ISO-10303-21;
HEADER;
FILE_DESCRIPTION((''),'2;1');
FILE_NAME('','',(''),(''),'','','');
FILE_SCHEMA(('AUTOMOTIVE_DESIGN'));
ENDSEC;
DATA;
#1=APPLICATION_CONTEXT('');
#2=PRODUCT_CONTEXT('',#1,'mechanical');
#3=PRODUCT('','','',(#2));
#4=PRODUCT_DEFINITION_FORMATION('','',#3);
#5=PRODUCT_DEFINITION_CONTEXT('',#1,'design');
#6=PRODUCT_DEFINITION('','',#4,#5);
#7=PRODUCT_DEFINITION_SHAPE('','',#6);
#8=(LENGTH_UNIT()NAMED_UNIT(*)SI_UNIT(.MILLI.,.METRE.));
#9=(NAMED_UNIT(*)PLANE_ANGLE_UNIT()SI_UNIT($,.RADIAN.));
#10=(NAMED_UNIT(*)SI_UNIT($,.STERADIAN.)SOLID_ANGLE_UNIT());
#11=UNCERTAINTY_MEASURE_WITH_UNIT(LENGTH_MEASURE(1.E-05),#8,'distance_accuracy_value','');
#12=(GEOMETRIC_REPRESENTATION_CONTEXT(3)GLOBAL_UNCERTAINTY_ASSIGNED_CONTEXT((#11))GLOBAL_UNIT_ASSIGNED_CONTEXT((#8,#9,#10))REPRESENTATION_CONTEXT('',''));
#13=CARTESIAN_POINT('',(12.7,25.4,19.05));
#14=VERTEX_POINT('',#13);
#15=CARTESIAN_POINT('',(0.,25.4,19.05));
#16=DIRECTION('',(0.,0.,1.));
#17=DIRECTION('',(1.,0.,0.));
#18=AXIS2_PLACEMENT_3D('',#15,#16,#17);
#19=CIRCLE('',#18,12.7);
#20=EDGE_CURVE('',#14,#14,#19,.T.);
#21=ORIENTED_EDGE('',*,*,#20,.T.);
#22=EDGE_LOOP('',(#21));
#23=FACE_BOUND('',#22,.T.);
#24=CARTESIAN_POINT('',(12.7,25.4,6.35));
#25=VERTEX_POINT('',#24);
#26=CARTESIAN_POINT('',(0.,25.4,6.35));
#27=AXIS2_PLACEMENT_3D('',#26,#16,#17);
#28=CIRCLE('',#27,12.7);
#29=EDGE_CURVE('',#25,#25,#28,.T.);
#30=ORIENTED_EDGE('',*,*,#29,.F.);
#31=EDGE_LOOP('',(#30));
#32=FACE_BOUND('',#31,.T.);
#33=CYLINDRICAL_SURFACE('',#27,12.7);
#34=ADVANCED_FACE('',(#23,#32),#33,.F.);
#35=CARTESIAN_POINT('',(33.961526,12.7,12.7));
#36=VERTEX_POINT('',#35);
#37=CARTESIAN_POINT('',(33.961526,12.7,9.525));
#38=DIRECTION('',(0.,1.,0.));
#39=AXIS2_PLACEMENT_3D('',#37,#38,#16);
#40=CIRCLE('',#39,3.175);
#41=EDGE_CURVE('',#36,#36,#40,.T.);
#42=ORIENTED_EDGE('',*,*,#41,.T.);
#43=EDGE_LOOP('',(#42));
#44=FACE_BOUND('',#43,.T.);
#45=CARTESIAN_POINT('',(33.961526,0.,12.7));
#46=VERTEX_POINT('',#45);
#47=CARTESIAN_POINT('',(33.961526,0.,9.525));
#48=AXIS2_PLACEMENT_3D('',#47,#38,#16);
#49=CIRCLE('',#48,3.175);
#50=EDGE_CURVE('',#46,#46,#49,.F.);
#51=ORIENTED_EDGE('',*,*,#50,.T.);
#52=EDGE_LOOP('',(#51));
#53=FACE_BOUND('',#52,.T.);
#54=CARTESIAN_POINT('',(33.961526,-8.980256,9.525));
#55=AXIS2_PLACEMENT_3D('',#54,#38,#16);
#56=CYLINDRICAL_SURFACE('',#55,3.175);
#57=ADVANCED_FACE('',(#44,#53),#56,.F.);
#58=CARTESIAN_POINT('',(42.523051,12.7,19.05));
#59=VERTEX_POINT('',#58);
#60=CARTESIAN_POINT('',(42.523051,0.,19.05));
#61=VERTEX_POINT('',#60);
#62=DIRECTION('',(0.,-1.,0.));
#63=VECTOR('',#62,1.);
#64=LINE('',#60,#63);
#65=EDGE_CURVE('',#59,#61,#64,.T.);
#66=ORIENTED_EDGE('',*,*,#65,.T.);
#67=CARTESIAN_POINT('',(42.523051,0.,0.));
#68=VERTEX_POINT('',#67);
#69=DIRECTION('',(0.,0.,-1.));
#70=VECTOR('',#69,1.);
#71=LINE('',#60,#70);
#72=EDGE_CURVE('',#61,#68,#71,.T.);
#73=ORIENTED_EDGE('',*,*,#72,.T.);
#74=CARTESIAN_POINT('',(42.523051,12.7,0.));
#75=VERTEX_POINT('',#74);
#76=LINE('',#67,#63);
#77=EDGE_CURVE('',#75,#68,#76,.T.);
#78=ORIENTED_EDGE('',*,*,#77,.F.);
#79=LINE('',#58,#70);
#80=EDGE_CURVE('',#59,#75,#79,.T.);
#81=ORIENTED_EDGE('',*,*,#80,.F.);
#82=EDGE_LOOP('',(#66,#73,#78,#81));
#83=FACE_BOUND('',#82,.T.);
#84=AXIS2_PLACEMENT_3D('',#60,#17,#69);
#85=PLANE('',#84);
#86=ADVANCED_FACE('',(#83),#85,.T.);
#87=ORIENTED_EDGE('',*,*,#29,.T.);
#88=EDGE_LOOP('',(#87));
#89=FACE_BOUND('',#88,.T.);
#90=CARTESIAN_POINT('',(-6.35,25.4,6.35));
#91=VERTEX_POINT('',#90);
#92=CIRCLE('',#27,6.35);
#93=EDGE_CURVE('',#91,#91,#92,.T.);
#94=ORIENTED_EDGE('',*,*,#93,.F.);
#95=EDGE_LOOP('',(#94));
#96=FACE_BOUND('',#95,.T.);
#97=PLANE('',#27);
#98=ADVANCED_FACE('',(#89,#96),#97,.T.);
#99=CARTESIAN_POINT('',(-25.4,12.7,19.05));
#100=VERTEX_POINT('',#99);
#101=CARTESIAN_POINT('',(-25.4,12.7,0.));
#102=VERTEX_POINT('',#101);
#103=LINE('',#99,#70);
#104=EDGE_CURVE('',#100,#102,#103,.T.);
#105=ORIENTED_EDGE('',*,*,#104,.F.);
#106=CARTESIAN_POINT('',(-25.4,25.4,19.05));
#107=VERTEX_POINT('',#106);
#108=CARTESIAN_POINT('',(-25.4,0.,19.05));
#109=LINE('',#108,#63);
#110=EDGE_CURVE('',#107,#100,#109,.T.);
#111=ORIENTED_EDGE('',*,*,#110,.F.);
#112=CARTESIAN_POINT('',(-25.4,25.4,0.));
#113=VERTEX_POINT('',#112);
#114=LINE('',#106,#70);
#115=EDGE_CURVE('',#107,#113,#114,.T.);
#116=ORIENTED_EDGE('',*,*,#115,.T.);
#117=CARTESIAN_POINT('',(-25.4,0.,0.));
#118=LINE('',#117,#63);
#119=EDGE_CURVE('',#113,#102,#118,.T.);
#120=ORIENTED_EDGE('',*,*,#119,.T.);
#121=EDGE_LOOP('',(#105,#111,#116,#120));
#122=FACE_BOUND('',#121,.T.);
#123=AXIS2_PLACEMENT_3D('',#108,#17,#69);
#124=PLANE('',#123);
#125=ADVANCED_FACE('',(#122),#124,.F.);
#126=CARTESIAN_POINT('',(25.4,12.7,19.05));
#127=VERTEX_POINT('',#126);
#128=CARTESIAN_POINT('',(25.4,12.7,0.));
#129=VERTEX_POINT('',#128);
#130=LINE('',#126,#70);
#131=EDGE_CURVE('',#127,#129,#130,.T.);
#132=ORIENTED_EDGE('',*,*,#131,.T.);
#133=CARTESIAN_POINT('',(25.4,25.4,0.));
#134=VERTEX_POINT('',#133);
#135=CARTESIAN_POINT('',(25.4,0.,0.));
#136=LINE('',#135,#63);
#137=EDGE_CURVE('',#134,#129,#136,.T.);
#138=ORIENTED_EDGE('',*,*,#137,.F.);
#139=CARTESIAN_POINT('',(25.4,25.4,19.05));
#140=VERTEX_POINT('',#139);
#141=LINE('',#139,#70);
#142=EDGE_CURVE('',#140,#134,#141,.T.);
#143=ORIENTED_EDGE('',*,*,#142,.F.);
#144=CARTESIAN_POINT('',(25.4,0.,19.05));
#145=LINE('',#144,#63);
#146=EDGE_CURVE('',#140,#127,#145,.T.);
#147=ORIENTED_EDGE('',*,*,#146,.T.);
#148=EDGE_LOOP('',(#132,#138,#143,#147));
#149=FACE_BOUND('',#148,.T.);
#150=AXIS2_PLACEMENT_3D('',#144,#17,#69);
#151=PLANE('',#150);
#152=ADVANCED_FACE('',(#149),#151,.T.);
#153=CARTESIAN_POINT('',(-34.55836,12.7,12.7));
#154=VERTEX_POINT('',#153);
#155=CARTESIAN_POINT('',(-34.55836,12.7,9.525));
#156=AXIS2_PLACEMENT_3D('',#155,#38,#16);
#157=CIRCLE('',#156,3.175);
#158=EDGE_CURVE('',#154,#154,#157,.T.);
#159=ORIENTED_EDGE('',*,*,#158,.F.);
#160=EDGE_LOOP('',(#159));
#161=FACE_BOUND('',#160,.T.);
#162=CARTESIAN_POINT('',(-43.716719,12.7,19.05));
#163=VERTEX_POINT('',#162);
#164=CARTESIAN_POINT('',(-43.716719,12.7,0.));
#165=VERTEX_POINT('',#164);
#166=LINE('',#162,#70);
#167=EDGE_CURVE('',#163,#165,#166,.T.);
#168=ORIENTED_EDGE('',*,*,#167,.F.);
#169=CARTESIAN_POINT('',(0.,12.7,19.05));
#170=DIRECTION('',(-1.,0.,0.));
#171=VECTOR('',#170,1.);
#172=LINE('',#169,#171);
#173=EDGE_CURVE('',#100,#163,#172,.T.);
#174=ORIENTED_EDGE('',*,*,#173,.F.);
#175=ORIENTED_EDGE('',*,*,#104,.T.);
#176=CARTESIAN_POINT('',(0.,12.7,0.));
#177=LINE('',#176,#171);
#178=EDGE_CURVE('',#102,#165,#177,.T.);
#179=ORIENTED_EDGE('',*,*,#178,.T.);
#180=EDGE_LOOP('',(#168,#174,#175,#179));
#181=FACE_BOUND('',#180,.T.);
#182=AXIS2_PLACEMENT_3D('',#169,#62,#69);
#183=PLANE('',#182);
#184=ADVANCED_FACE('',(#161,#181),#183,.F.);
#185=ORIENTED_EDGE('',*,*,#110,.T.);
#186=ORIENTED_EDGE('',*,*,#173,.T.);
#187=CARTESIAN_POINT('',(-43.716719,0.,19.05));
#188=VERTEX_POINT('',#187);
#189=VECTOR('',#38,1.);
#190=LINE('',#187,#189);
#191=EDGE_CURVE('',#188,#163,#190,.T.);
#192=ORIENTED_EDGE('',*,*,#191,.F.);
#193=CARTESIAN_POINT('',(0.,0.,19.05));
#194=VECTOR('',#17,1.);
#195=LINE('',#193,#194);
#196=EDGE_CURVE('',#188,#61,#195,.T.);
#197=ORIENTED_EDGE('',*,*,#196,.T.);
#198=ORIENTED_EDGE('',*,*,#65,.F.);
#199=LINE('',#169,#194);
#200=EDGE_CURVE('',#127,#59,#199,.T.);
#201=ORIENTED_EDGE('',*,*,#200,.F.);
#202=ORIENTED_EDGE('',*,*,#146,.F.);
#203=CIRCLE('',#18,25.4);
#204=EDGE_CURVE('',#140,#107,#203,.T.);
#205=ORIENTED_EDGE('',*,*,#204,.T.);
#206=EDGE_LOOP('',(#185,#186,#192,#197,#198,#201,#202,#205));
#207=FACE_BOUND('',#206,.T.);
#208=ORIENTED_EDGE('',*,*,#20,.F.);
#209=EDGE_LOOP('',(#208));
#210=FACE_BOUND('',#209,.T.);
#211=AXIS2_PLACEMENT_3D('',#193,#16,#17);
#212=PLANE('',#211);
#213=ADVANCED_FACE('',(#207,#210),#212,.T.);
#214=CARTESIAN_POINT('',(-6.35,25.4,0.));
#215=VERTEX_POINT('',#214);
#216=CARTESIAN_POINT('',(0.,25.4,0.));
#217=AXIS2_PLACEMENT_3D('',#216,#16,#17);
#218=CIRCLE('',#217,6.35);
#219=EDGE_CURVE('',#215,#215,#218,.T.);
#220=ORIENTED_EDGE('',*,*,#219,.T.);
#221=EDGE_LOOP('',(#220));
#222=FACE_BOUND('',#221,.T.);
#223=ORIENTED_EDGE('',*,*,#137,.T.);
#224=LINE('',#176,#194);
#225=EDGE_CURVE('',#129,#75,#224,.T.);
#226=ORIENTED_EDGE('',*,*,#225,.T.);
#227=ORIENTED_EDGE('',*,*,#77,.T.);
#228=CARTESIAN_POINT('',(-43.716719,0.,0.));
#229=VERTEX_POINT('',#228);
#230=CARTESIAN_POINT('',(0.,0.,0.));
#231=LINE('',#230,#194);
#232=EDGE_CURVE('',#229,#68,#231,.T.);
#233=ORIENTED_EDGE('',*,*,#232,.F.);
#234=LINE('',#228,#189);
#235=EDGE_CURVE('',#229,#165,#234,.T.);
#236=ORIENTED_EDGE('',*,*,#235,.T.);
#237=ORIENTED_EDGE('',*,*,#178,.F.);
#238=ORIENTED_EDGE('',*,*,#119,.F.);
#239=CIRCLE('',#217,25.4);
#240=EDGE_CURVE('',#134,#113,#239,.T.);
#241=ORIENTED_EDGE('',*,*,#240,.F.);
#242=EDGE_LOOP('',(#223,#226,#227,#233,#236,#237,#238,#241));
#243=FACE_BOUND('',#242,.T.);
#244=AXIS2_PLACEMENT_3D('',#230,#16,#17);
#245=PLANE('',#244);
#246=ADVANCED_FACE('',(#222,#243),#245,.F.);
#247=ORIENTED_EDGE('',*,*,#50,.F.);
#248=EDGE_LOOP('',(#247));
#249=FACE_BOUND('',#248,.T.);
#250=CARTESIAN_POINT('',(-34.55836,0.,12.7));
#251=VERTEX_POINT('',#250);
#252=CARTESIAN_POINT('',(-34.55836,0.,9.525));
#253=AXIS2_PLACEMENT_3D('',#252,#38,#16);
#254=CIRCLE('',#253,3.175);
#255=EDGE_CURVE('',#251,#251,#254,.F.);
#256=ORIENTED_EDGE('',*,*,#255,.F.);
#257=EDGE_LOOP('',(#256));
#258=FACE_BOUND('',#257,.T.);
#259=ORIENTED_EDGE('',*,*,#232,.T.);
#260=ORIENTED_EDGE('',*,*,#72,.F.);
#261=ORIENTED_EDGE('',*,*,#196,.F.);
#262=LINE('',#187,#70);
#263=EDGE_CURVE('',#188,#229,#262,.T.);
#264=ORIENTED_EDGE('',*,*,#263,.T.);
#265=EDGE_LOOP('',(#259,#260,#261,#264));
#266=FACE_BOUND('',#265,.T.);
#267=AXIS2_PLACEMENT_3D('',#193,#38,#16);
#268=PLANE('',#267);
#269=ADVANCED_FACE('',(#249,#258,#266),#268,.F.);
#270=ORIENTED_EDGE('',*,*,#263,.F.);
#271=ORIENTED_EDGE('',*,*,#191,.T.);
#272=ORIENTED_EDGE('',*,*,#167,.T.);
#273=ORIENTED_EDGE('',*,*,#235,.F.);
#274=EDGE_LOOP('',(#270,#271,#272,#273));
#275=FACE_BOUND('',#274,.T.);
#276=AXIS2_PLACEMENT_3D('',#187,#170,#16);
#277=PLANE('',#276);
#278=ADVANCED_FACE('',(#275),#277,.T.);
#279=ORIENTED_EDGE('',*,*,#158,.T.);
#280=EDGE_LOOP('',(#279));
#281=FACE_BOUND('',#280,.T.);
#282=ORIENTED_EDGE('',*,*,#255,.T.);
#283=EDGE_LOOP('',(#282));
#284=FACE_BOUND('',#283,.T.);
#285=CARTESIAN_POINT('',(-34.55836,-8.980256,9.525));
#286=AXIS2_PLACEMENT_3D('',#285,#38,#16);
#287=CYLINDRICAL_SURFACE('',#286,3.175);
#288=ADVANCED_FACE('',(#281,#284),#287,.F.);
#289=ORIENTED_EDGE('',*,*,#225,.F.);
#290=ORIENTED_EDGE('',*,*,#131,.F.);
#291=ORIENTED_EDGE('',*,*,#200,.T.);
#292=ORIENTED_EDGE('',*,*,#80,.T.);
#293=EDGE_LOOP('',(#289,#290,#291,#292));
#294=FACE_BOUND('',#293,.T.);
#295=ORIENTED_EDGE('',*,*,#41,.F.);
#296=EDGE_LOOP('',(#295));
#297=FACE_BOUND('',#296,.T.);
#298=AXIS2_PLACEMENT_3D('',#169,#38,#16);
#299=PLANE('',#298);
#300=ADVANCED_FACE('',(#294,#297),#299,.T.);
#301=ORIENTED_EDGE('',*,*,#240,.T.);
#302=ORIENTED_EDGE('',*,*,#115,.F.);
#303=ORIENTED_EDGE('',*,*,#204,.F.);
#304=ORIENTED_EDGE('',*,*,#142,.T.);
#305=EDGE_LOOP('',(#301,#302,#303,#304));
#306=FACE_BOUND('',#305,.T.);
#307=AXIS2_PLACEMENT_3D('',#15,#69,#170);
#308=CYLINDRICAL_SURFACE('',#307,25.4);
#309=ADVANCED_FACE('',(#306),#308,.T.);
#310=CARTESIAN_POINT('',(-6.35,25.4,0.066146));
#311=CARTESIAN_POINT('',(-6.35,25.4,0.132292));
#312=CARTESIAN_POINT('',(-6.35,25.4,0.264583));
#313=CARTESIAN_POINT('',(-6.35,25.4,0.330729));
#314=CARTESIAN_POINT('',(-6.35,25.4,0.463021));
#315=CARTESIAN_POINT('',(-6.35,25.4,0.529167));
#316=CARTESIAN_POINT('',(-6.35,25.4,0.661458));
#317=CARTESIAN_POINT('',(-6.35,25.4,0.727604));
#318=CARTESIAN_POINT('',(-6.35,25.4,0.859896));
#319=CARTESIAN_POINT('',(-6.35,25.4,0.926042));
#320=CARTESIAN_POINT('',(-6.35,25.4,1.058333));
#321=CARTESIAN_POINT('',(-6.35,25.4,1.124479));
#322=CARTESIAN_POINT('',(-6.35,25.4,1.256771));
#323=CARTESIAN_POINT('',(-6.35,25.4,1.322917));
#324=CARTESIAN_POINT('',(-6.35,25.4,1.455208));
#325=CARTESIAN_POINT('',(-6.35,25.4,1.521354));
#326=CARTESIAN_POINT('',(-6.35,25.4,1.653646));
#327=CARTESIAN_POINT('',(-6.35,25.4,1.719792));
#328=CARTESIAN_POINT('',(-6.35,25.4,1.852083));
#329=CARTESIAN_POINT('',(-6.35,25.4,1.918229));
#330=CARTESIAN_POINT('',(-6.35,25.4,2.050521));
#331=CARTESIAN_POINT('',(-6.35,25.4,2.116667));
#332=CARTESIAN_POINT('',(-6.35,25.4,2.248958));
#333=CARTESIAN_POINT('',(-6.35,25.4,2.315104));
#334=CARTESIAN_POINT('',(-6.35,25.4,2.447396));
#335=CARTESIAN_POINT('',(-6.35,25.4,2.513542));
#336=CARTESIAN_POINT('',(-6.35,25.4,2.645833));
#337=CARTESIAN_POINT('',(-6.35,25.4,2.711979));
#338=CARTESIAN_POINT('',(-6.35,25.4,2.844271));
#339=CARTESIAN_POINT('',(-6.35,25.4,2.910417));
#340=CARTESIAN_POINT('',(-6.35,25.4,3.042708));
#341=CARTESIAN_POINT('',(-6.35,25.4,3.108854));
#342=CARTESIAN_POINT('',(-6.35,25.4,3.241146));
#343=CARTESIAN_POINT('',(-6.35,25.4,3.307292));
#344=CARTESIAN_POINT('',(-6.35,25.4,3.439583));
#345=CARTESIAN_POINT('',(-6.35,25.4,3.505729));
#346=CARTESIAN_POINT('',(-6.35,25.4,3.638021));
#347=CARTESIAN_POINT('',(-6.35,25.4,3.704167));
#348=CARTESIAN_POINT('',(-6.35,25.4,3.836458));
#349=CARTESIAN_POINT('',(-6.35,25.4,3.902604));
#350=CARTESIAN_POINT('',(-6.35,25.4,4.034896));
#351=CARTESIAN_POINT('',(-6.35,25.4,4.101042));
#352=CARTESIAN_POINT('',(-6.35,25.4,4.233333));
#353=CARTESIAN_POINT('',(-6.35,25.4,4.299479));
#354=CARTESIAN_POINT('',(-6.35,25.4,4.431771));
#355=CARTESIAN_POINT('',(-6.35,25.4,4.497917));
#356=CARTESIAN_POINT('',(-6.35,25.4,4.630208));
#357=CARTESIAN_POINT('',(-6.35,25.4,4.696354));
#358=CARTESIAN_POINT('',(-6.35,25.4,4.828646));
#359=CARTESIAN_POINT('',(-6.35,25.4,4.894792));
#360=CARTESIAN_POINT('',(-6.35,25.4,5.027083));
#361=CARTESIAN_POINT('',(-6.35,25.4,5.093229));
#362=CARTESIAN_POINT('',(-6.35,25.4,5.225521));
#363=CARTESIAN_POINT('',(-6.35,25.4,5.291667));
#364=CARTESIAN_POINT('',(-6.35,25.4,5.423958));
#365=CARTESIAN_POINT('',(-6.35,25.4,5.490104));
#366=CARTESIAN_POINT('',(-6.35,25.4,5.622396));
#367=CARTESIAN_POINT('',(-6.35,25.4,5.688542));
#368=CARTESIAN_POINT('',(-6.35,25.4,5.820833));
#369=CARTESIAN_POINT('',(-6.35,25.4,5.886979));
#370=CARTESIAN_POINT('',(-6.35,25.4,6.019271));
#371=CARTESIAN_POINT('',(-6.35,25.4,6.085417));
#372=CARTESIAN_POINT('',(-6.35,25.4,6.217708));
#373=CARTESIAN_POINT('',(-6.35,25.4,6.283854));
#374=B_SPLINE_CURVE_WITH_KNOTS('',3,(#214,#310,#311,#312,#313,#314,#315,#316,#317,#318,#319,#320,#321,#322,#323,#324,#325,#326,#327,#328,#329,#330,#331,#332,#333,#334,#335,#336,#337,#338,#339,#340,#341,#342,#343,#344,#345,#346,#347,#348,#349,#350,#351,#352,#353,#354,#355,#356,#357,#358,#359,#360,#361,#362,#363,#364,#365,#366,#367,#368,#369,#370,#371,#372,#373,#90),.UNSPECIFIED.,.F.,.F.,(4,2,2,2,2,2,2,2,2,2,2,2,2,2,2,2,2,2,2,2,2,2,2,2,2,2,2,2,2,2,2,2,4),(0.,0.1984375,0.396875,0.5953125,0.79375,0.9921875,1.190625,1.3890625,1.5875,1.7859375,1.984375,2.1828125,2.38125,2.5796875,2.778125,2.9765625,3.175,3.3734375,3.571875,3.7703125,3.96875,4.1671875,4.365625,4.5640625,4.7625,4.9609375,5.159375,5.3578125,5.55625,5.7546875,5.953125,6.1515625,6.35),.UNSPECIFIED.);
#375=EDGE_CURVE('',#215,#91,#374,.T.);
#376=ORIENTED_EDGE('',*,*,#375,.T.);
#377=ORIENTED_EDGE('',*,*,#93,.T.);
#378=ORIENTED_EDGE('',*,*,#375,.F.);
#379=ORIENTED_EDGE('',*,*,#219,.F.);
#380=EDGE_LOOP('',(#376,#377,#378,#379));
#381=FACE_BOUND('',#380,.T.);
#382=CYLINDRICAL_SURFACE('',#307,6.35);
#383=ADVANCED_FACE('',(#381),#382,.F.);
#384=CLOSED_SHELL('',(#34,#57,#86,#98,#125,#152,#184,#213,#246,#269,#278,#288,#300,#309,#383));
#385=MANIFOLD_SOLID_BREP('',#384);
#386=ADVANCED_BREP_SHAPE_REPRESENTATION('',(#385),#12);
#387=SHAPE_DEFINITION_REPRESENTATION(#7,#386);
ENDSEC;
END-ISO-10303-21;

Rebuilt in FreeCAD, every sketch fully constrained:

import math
import FreeCAD as App
import Part
import Sketcher
from FreeCAD import Vector
Q = App.Units.Quantity

doc = App.newDocument("Part")
body = doc.addObject("PartDesign::Body", "Body")

sketch1 = doc.addObject("Sketcher::SketchObject", "Sketch")
body.addObject(sketch1)
sketch1.AttachmentSupport = (doc.XY_Plane, [""])
sketch1.MapMode = "FlatFace"
sketch1.addGeometry([
    Part.LineSegment(Vector(25, 13, 0), Vector(25, 25, 0)),
    Part.ArcOfCircle(Part.Circle(Vector(0, 25, 0), Vector(0, 0, 1), 25), math.radians(0), math.radians(180)),
    Part.LineSegment(Vector(-25, 25, 0), Vector(-25, 13, 0)),
    Part.LineSegment(Vector(-25, 13, 0), Vector(-44, 13, 0)),
    Part.LineSegment(Vector(-44, 13, 0), Vector(-44, 0, 0)),
    Part.LineSegment(Vector(-44, 0, 0), Vector(43, 0, 0)),
    Part.LineSegment(Vector(43, 0, 0), Vector(43, 13, 0)),
    Part.LineSegment(Vector(43, 13, 0), Vector(25, 13, 0)),
    Part.Circle(Vector(0, 25, 0), Vector(0, 0, 1), 6),
], False)
sketch1.addConstraint([
    Sketcher.Constraint("Tangent", 0, 2, 1, 1),
    Sketcher.Constraint("Tangent", 1, 2, 2, 1),
    Sketcher.Constraint("Coincident", 2, 2, 3, 1),
    Sketcher.Constraint("Coincident", 3, 2, 4, 1),
    Sketcher.Constraint("Coincident", 4, 2, 5, 1),
    Sketcher.Constraint("Coincident", 5, 2, 6, 1),
    Sketcher.Constraint("Coincident", 6, 2, 7, 1),
    Sketcher.Constraint("Coincident", 7, 2, 0, 1),
    Sketcher.Constraint("Vertical", 0),
    Sketcher.Constraint("Vertical", 2),
    Sketcher.Constraint("Horizontal", 3),
    Sketcher.Constraint("Vertical", 4),
    Sketcher.Constraint("Horizontal", 5),
    Sketcher.Constraint("Vertical", 6),
    Sketcher.Constraint("Horizontal", 7),
    Sketcher.Constraint("Coincident", 8, 3, 1, 3),
    Sketcher.Constraint("Symmetric", 2, 2, 7, 2, -2),
    Sketcher.Constraint("PointOnObject", 4, 2, -1),
    Sketcher.Constraint("Equal", 2, 4),
    Sketcher.Constraint("Radius", 1, Q("1 in")),
    Sketcher.Constraint("Diameter", 8, Q("0.5 in")),
    Sketcher.Constraint("DistanceY", 0, 1, 0, 2, Q("0.5 in")),
    Sketcher.Constraint("DistanceX", 3, 2, 3, 1, 18.316719),
    Sketcher.Constraint("DistanceX", 5, 1, 5, 2, 86.23977),
])
pad1 = doc.addObject("PartDesign::Pad", "Pad")
body.addObject(pad1)
pad1.Profile = sketch1
pad1.Length = Q("0.75 in")

sketch2 = doc.addObject("Sketcher::SketchObject", "Sketch001")
body.addObject(sketch2)
sketch2.AttachmentSupport = (doc.XY_Plane, [""])
sketch2.MapMode = "FlatFace"
sketch2.AttachmentOffset = App.Placement(Vector(0, 0, 0.75 * 25.4), App.Rotation())
sketch2.addGeometry(Part.Circle(Vector(0, 25, 0), Vector(0, 0, 1), 13), False)
sketch2.addConstraint([
    Sketcher.Constraint("PointOnObject", 0, 3, -2),
    Sketcher.Constraint("Diameter", 0, Q("1 in")),
    Sketcher.Constraint("DistanceY", -1, 1, 0, 3, Q("1 in")),
])
pocket1 = doc.addObject("PartDesign::Pocket", "Pocket")
body.addObject(pocket1)
pocket1.Profile = sketch2
pocket1.Length = Q("0.5 in")

sketch3 = doc.addObject("Sketcher::SketchObject", "Sketch002")
body.addObject(sketch3)
sketch3.AttachmentSupport = (doc.XZ_Plane, [""])
sketch3.MapMode = "FlatFace"
sketch3.AttachmentOffset = App.Placement(Vector(0, 0, -0.5 * 25.4), App.Rotation())
sketch3.addGeometry([
    Part.Circle(Vector(-34.6, 9.5, 0), Vector(0, 0, 1), 3.2),
    Part.Circle(Vector(34, 9.5, 0), Vector(0, 0, 1), 3.2),
], False)
sketch3.addConstraint([
    Sketcher.Constraint("Equal", 0, 1),
    Sketcher.Constraint("Horizontal", 0, 3, 1, 3),
    Sketcher.Constraint("Diameter", 0, Q("0.25 in")),
    Sketcher.Constraint("DistanceY", -1, 1, 0, 3, Q("0.375 in")),
    Sketcher.Constraint("DistanceX", 0, 3, -1, 1, 34.55836),
    Sketcher.Constraint("DistanceX", -1, 1, 1, 3, 33.961526),
])
pocket2 = doc.addObject("PartDesign::Pocket", "Pocket001")
body.addObject(pocket2)
pocket2.Profile = sketch3
pocket2.Length = Q("0.5 in")
pocket2.Reversed = True

doc.recompute()
